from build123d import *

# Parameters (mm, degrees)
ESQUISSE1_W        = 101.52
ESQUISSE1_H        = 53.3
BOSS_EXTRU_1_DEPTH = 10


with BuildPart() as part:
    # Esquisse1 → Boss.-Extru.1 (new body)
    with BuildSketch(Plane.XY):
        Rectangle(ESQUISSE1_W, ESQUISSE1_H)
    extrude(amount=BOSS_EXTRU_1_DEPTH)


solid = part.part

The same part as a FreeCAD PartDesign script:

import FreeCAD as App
import Part
import Sketcher
Q = App.Units.Quantity

doc = App.newDocument("Part")
body = doc.addObject("PartDesign::Body", "Body")

# Sketch on XY plane
sketch1 = body.newObject("Sketcher::SketchObject", "Sketch")
sketch1.AttachmentSupport = (doc.getObject("XY_Plane"), [""])
sketch1.MapMode = "FlatFace"
sketch1.addGeometry(Part.LineSegment(App.Vector(-51, 27, 0), App.Vector(-51, -27, 0)), False)
sketch1.addGeometry(Part.LineSegment(App.Vector(-51, -27, 0), App.Vector(51, -27, 0)), False)
sketch1.addGeometry(Part.LineSegment(App.Vector(51, -27, 0), App.Vector(51, 27, 0)), False)
sketch1.addGeometry(Part.LineSegment(App.Vector(51, 27, 0), App.Vector(-51, 27, 0)), False)
sketch1.addConstraint(Sketcher.Constraint("Coincident", 0, 2, 1, 1))
sketch1.addConstraint(Sketcher.Constraint("Coincident", 1, 2, 2, 1))
sketch1.addConstraint(Sketcher.Constraint("Coincident", 2, 2, 3, 1))
sketch1.addConstraint(Sketcher.Constraint("Coincident", 3, 2, 0, 1))
sketch1.addConstraint(Sketcher.Constraint("Vertical", 0))
sketch1.addConstraint(Sketcher.Constraint("Horizontal", 1))
sketch1.addConstraint(Sketcher.Constraint("Vertical", 2))
sketch1.addConstraint(Sketcher.Constraint("Horizontal", 3))
sketch1.addConstraint(Sketcher.Constraint("Symmetric", 0, 2, 2, 2, -1, 1))
sketch1.addConstraint(Sketcher.Constraint("DistanceY", 0, 2, 0, 1, Q("53.3 mm")))
sketch1.addConstraint(Sketcher.Constraint("DistanceX", 1, 1, 1, 2, Q("101.52 mm")))
pad1 = body.newObject("PartDesign::Pad", "Pad")
pad1.Profile = sketch1
pad1.Length = 10

doc.recompute()
